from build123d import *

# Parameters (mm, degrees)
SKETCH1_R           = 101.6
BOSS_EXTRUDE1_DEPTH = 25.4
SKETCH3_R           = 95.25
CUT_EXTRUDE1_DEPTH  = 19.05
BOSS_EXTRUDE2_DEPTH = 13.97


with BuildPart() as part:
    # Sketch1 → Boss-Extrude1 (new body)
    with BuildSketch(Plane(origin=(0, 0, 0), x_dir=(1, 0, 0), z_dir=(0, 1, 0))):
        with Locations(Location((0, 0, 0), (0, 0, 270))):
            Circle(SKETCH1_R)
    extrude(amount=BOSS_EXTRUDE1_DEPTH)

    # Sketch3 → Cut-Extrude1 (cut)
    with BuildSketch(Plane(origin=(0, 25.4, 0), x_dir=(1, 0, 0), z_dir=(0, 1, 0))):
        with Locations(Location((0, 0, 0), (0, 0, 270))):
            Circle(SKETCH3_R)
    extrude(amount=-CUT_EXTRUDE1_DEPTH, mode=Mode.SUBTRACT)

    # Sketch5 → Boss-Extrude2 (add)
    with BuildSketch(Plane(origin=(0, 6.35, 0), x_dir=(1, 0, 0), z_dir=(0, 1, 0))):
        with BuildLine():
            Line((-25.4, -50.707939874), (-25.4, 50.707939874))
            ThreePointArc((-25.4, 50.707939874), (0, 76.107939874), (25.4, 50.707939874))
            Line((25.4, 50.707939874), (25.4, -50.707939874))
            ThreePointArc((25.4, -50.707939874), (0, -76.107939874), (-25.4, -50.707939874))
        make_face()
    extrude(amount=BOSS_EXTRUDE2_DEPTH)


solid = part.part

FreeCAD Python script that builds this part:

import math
import FreeCAD as App
import Part
import Sketcher

V = App.Vector
Q = App.Units.Quantity

doc = App.newDocument("Part")
params = doc.addObject("Spreadsheet::Sheet", "Params")
for row, (alias, value) in enumerate([
    ("sketch1_diameter", "8 in"),
    ("pad1_length", "1 in"),
    ("sketch2_diameter", "7.5 in"),
    ("pocket1_length", "0.75 in"),
    ("sketch3_radius", "1 in"),
    ("pad2_length", "0.55 in"),
], start=1):
    params.set(f"A{row}", alias)
    params.set(f"B{row}", "=" + value)
    params.setAlias(f"B{row}", alias)

body = doc.addObject("PartDesign::Body", "Body")

# Sketch on XZ plane
sketch1 = body.newObject("Sketcher::SketchObject", "Sketch")
sketch1.AttachmentSupport = (doc.getObject("XZ_Plane"), [""])
sketch1.MapMode = "FlatFace"
sketch1.addGeometry(Part.Circle(V(0, 0, 0), V(0, 0, 1), 101.6), False)
sketch1.addConstraint([
    Sketcher.Constraint("Coincident", 0, 3, -1, 1),
    Sketcher.Constraint("Diameter", 0, Q("8 in")),
])
sketch1.setExpression("Constraints[1]", "Params.sketch1_diameter")
pad1 = body.newObject("PartDesign::Pad", "Pad")
pad1.Profile = sketch1
pad1.setExpression("Length", "Params.pad1_length")
pad1.Reversed = True

# Sketch on XZ plane
sketch2 = body.newObject("Sketcher::SketchObject", "Sketch001")
sketch2.AttachmentSupport = (doc.getObject("XZ_Plane"), [""])
sketch2.MapMode = "FlatFace"
sketch2.AttachmentOffset = App.Placement(V(0, 0, -1 * 25.4), App.Rotation())
sketch2.addGeometry(Part.Circle(V(0, 0, 0), V(0, 0, 1), 95.25), False)
sketch2.addConstraint([
    Sketcher.Constraint("Coincident", 0, 3, -1, 1),
    Sketcher.Constraint("Diameter", 0, Q("7.5 in")),
])
sketch2.setExpression("Constraints[1]", "Params.sketch2_diameter")
pocket1 = body.newObject("PartDesign::Pocket", "Pocket")
pocket1.Profile = sketch2
pocket1.setExpression("Length", "Params.pocket1_length")
pocket1.Reversed = True

# Sketch on XZ plane
sketch3 = body.newObject("Sketcher::SketchObject", "Sketch002")
sketch3.AttachmentSupport = (doc.getObject("XZ_Plane"), [""])
sketch3.MapMode = "FlatFace"
sketch3.AttachmentOffset = App.Placement(V(0, 0, -0.25 * 25.4), App.Rotation())
sketch3.addGeometry([
    Part.LineSegment(V(-25.4, -50.70794, 0), V(-25.4, 50.70794, 0)),
    Part.ArcOfCircle(Part.Circle(V(0, 50.70794, 0), V(0, 0, 1), 25.4), math.radians(0), math.radians(180)),
    Part.LineSegment(V(25.4, 50.70794, 0), V(25.4, -50.70794, 0)),
    Part.ArcOfCircle(Part.Circle(V(0, -50.70794, 0), V(0, 0, 1), 25.4), math.radians(180), math.radians(360)),
], False)
sketch3.addConstraint([
    Sketcher.Constraint("Tangent", 0, 2, 1, 2),
    Sketcher.Constraint("Tangent", 1, 1, 2, 1),
    Sketcher.Constraint("Tangent", 2, 2, 3, 2),
    Sketcher.Constraint("Tangent", 3, 1, 0, 1),
    Sketcher.Constraint("Vertical", 0),
    Sketcher.Constraint("Vertical", 2),
    Sketcher.Constraint("Symmetric", 1, 3, 3, 3, -1, 1),
    Sketcher.Constraint("Radius", 1, Q("1 in")),
    Sketcher.Constraint("DistanceY", 0, 1, 0, 2, Q("101.41588 mm")),
])
sketch3.setExpression("Constraints[7]", "Params.sketch3_radius")
pad2 = body.newObject("PartDesign::Pad", "Pad001")
pad2.Profile = sketch3
pad2.setExpression("Length", "Params.pad2_length")
pad2.Reversed = True

doc.recompute()
